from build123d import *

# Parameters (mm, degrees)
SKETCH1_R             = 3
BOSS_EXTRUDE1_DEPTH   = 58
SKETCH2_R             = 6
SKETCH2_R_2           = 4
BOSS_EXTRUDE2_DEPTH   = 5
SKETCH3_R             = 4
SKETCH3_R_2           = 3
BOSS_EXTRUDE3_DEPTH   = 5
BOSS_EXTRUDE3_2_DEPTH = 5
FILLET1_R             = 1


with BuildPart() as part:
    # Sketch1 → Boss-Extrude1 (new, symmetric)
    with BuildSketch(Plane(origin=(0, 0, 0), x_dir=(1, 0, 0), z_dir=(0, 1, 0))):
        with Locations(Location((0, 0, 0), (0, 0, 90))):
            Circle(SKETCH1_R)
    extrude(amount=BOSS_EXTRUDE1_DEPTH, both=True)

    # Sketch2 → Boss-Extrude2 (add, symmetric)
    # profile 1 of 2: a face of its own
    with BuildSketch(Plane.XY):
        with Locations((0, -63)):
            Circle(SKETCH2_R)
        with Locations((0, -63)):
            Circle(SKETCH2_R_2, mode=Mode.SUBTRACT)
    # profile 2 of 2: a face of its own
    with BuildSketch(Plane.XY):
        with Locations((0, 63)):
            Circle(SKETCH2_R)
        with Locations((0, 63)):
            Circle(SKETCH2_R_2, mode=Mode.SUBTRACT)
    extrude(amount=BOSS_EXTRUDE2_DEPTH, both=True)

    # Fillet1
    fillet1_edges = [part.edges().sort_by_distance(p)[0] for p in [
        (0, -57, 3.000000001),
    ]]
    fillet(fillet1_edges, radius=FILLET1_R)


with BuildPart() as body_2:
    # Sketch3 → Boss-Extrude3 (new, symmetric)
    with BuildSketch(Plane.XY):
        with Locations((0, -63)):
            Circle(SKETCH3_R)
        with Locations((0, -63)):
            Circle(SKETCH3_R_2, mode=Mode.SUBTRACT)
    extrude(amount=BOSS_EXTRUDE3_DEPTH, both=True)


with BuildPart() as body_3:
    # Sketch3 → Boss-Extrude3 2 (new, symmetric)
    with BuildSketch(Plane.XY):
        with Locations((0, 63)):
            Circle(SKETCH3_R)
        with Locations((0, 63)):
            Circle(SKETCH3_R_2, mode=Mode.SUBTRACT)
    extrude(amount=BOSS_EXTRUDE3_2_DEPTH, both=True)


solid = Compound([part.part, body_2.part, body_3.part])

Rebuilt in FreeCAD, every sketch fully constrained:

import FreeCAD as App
import Part
import Sketcher
from FreeCAD import Vector


def edges_at(feature, points):
    """Names of the edges that pass closest to the given points."""
    edges = feature.Shape.Edges
    near = lambda p: min(range(len(edges)), key=lambda i: edges[i].distToShape(Part.Vertex(*p))[0])
    return sorted({f"Edge{near(p) + 1}" for p in points})

doc = App.newDocument("Part")
params = doc.addObject("Spreadsheet::Sheet", "Params")
for row, (alias, value) in enumerate([
    ("sketch1_diameter", "6 mm"),
    ("pad1_length", "116 mm"),
    ("sketch2_diameter", "12 mm"),
    ("sketch2_diameter2", "8 mm"),
    ("pad2_length", "10 mm"),
    ("fillet_radius", "1 mm"),
    ("sketch3_diameter", "8 mm"),
    ("sketch3_diameter2", "6 mm"),
    ("pad3_length", "10 mm"),
    ("sketch4_diameter", "8 mm"),
    ("sketch4_diameter2", "6 mm"),
    ("pad4_length", "10 mm"),
], start=1):
    params.set(f"A{row}", alias)
    params.set(f"B{row}", "=" + value)
    params.setAlias(f"B{row}", alias)

body = doc.addObject("PartDesign::Body", "Body")

# Sketch on XZ plane
sketch1 = body.newObject("Sketcher::SketchObject", "Sketch")
sketch1.AttachmentSupport = (doc.getObject("XZ_Plane"), [""])
sketch1.MapMode = "FlatFace"
sketch1.addGeometry(Part.Circle(Vector(0, 0, 0), Vector(0, 0, 1), 3), False)
sketch1.addConstraint(Sketcher.Constraint("Coincident", 0, 3, -1, 1))
sketch1.addConstraint(Sketcher.Constraint("Diameter", 0, 6.0))
sketch1.setExpression("Constraints[1]", "Params.sketch1_diameter")
pad1 = body.newObject("PartDesign::Pad", "Pad")
pad1.Profile = sketch1
pad1.setExpression("Length", "Params.pad1_length")
pad1.Midplane = True

# Sketch on XY plane
sketch2 = body.newObject("Sketcher::SketchObject", "Sketch001")
sketch2.AttachmentSupport = (doc.getObject("XY_Plane"), [""])
sketch2.MapMode = "FlatFace"
sketch2.addGeometry(Part.Circle(Vector(0, -63, 0), Vector(0, 0, 1), 6), False)
sketch2.addGeometry(Part.Circle(Vector(0, -63, 0), Vector(0, 0, 1), 4), False)
sketch2.addGeometry(Part.Circle(Vector(0, 63, 0), Vector(0, 0, 1), 6), False)
sketch2.addGeometry(Part.Circle(Vector(0, 63, 0), Vector(0, 0, 1), 4), False)
sketch2.addConstraint(Sketcher.Constraint("Coincident", 1, 3, 0, 3))
sketch2.addConstraint(Sketcher.Constraint("Coincident", 3, 3, 2, 3))
sketch2.addConstraint(Sketcher.Constraint("Equal", 0, 2))
sketch2.addConstraint(Sketcher.Constraint("Equal", 1, 3))
sketch2.addConstraint(Sketcher.Constraint("Symmetric", 0, 3, 2, 3, -1, 1))
sketch2.addConstraint(Sketcher.Constraint("PointOnObject", 0, 3, -2))
sketch2.addConstraint(Sketcher.Constraint("Diameter", 0, 12.0))
sketch2.addConstraint(Sketcher.Constraint("Diameter", 1, 8.0))
sketch2.addConstraint(Sketcher.Constraint("DistanceY", 0, 3, -1, 1, 63.0))
sketch2.setExpression("Constraints[6]", "Params.sketch2_diameter")
sketch2.setExpression("Constraints[7]", "Params.sketch2_diameter2")
pad2 = body.newObject("PartDesign::Pad", "Pad001")
pad2.Profile = sketch2
pad2.setExpression("Length", "Params.pad2_length")
pad2.Midplane = True
doc.recompute()

fillet = body.newObject("PartDesign::Fillet", "Fillet")
fillet.Base = (pad2, edges_at(pad2, [(0, -57, 3)]))
fillet.setExpression("Radius", "Params.fillet_radius")
body2 = doc.addObject("PartDesign::Body", "Body001")

# Sketch on XY plane
sketch3 = body2.newObject("Sketcher::SketchObject", "Sketch002")
sketch3.AttachmentSupport = (doc.getObject("XY_Plane001"), [""])
sketch3.MapMode = "FlatFace"
sketch3.addGeometry(Part.Circle(Vector(0, -63, 0), Vector(0, 0, 1), 4), False)
sketch3.addGeometry(Part.Circle(Vector(0, -63, 0), Vector(0, 0, 1), 3), False)
sketch3.addConstraint(Sketcher.Constraint("Coincident", 1, 3, 0, 3))
sketch3.addConstraint(Sketcher.Constraint("PointOnObject", 0, 3, -2))
sketch3.addConstraint(Sketcher.Constraint("Diameter", 0, 8.0))
sketch3.addConstraint(Sketcher.Constraint("Diameter", 1, 6.0))
sketch3.addConstraint(Sketcher.Constraint("DistanceY", 0, 3, -1, 1, 63.0))
sketch3.setExpression("Constraints[2]", "Params.sketch3_diameter")
sketch3.setExpression("Constraints[3]", "Params.sketch3_diameter2")
pad3 = body2.newObject("PartDesign::Pad", "Pad002")
pad3.Profile = sketch3
pad3.setExpression("Length", "Params.pad3_length")
pad3.Midplane = True
body3 = doc.addObject("PartDesign::Body", "Body002")

# Sketch on XY plane
sketch4 = body3.newObject("Sketcher::SketchObject", "Sketch003")
sketch4.AttachmentSupport = (doc.getObject("XY_Plane002"), [""])
sketch4.MapMode = "FlatFace"
sketch4.addGeometry(Part.Circle(Vector(0, 63, 0), Vector(0, 0, 1), 4), False)
sketch4.addGeometry(Part.Circle(Vector(0, 63, 0), Vector(0, 0, 1), 3), False)
sketch4.addConstraint(Sketcher.Constraint("Coincident", 1, 3, 0, 3))
sketch4.addConstraint(Sketcher.Constraint("PointOnObject", 0, 3, -2))
sketch4.addConstraint(Sketcher.Constraint("Diameter", 0, 8.0))
sketch4.addConstraint(Sketcher.Constraint("Diameter", 1, 6.0))
sketch4.addConstraint(Sketcher.Constraint("DistanceY", -1, 1, 0, 3, 63.0))
sketch4.setExpression("Constraints[2]", "Params.sketch4_diameter")
sketch4.setExpression("Constraints[3]", "Params.sketch4_diameter2")
pad4 = body3.newObject("PartDesign::Pad", "Pad003")
pad4.Profile = sketch4
pad4.setExpression("Length", "Params.pad4_length")
pad4.Midplane = True

doc.recompute()
